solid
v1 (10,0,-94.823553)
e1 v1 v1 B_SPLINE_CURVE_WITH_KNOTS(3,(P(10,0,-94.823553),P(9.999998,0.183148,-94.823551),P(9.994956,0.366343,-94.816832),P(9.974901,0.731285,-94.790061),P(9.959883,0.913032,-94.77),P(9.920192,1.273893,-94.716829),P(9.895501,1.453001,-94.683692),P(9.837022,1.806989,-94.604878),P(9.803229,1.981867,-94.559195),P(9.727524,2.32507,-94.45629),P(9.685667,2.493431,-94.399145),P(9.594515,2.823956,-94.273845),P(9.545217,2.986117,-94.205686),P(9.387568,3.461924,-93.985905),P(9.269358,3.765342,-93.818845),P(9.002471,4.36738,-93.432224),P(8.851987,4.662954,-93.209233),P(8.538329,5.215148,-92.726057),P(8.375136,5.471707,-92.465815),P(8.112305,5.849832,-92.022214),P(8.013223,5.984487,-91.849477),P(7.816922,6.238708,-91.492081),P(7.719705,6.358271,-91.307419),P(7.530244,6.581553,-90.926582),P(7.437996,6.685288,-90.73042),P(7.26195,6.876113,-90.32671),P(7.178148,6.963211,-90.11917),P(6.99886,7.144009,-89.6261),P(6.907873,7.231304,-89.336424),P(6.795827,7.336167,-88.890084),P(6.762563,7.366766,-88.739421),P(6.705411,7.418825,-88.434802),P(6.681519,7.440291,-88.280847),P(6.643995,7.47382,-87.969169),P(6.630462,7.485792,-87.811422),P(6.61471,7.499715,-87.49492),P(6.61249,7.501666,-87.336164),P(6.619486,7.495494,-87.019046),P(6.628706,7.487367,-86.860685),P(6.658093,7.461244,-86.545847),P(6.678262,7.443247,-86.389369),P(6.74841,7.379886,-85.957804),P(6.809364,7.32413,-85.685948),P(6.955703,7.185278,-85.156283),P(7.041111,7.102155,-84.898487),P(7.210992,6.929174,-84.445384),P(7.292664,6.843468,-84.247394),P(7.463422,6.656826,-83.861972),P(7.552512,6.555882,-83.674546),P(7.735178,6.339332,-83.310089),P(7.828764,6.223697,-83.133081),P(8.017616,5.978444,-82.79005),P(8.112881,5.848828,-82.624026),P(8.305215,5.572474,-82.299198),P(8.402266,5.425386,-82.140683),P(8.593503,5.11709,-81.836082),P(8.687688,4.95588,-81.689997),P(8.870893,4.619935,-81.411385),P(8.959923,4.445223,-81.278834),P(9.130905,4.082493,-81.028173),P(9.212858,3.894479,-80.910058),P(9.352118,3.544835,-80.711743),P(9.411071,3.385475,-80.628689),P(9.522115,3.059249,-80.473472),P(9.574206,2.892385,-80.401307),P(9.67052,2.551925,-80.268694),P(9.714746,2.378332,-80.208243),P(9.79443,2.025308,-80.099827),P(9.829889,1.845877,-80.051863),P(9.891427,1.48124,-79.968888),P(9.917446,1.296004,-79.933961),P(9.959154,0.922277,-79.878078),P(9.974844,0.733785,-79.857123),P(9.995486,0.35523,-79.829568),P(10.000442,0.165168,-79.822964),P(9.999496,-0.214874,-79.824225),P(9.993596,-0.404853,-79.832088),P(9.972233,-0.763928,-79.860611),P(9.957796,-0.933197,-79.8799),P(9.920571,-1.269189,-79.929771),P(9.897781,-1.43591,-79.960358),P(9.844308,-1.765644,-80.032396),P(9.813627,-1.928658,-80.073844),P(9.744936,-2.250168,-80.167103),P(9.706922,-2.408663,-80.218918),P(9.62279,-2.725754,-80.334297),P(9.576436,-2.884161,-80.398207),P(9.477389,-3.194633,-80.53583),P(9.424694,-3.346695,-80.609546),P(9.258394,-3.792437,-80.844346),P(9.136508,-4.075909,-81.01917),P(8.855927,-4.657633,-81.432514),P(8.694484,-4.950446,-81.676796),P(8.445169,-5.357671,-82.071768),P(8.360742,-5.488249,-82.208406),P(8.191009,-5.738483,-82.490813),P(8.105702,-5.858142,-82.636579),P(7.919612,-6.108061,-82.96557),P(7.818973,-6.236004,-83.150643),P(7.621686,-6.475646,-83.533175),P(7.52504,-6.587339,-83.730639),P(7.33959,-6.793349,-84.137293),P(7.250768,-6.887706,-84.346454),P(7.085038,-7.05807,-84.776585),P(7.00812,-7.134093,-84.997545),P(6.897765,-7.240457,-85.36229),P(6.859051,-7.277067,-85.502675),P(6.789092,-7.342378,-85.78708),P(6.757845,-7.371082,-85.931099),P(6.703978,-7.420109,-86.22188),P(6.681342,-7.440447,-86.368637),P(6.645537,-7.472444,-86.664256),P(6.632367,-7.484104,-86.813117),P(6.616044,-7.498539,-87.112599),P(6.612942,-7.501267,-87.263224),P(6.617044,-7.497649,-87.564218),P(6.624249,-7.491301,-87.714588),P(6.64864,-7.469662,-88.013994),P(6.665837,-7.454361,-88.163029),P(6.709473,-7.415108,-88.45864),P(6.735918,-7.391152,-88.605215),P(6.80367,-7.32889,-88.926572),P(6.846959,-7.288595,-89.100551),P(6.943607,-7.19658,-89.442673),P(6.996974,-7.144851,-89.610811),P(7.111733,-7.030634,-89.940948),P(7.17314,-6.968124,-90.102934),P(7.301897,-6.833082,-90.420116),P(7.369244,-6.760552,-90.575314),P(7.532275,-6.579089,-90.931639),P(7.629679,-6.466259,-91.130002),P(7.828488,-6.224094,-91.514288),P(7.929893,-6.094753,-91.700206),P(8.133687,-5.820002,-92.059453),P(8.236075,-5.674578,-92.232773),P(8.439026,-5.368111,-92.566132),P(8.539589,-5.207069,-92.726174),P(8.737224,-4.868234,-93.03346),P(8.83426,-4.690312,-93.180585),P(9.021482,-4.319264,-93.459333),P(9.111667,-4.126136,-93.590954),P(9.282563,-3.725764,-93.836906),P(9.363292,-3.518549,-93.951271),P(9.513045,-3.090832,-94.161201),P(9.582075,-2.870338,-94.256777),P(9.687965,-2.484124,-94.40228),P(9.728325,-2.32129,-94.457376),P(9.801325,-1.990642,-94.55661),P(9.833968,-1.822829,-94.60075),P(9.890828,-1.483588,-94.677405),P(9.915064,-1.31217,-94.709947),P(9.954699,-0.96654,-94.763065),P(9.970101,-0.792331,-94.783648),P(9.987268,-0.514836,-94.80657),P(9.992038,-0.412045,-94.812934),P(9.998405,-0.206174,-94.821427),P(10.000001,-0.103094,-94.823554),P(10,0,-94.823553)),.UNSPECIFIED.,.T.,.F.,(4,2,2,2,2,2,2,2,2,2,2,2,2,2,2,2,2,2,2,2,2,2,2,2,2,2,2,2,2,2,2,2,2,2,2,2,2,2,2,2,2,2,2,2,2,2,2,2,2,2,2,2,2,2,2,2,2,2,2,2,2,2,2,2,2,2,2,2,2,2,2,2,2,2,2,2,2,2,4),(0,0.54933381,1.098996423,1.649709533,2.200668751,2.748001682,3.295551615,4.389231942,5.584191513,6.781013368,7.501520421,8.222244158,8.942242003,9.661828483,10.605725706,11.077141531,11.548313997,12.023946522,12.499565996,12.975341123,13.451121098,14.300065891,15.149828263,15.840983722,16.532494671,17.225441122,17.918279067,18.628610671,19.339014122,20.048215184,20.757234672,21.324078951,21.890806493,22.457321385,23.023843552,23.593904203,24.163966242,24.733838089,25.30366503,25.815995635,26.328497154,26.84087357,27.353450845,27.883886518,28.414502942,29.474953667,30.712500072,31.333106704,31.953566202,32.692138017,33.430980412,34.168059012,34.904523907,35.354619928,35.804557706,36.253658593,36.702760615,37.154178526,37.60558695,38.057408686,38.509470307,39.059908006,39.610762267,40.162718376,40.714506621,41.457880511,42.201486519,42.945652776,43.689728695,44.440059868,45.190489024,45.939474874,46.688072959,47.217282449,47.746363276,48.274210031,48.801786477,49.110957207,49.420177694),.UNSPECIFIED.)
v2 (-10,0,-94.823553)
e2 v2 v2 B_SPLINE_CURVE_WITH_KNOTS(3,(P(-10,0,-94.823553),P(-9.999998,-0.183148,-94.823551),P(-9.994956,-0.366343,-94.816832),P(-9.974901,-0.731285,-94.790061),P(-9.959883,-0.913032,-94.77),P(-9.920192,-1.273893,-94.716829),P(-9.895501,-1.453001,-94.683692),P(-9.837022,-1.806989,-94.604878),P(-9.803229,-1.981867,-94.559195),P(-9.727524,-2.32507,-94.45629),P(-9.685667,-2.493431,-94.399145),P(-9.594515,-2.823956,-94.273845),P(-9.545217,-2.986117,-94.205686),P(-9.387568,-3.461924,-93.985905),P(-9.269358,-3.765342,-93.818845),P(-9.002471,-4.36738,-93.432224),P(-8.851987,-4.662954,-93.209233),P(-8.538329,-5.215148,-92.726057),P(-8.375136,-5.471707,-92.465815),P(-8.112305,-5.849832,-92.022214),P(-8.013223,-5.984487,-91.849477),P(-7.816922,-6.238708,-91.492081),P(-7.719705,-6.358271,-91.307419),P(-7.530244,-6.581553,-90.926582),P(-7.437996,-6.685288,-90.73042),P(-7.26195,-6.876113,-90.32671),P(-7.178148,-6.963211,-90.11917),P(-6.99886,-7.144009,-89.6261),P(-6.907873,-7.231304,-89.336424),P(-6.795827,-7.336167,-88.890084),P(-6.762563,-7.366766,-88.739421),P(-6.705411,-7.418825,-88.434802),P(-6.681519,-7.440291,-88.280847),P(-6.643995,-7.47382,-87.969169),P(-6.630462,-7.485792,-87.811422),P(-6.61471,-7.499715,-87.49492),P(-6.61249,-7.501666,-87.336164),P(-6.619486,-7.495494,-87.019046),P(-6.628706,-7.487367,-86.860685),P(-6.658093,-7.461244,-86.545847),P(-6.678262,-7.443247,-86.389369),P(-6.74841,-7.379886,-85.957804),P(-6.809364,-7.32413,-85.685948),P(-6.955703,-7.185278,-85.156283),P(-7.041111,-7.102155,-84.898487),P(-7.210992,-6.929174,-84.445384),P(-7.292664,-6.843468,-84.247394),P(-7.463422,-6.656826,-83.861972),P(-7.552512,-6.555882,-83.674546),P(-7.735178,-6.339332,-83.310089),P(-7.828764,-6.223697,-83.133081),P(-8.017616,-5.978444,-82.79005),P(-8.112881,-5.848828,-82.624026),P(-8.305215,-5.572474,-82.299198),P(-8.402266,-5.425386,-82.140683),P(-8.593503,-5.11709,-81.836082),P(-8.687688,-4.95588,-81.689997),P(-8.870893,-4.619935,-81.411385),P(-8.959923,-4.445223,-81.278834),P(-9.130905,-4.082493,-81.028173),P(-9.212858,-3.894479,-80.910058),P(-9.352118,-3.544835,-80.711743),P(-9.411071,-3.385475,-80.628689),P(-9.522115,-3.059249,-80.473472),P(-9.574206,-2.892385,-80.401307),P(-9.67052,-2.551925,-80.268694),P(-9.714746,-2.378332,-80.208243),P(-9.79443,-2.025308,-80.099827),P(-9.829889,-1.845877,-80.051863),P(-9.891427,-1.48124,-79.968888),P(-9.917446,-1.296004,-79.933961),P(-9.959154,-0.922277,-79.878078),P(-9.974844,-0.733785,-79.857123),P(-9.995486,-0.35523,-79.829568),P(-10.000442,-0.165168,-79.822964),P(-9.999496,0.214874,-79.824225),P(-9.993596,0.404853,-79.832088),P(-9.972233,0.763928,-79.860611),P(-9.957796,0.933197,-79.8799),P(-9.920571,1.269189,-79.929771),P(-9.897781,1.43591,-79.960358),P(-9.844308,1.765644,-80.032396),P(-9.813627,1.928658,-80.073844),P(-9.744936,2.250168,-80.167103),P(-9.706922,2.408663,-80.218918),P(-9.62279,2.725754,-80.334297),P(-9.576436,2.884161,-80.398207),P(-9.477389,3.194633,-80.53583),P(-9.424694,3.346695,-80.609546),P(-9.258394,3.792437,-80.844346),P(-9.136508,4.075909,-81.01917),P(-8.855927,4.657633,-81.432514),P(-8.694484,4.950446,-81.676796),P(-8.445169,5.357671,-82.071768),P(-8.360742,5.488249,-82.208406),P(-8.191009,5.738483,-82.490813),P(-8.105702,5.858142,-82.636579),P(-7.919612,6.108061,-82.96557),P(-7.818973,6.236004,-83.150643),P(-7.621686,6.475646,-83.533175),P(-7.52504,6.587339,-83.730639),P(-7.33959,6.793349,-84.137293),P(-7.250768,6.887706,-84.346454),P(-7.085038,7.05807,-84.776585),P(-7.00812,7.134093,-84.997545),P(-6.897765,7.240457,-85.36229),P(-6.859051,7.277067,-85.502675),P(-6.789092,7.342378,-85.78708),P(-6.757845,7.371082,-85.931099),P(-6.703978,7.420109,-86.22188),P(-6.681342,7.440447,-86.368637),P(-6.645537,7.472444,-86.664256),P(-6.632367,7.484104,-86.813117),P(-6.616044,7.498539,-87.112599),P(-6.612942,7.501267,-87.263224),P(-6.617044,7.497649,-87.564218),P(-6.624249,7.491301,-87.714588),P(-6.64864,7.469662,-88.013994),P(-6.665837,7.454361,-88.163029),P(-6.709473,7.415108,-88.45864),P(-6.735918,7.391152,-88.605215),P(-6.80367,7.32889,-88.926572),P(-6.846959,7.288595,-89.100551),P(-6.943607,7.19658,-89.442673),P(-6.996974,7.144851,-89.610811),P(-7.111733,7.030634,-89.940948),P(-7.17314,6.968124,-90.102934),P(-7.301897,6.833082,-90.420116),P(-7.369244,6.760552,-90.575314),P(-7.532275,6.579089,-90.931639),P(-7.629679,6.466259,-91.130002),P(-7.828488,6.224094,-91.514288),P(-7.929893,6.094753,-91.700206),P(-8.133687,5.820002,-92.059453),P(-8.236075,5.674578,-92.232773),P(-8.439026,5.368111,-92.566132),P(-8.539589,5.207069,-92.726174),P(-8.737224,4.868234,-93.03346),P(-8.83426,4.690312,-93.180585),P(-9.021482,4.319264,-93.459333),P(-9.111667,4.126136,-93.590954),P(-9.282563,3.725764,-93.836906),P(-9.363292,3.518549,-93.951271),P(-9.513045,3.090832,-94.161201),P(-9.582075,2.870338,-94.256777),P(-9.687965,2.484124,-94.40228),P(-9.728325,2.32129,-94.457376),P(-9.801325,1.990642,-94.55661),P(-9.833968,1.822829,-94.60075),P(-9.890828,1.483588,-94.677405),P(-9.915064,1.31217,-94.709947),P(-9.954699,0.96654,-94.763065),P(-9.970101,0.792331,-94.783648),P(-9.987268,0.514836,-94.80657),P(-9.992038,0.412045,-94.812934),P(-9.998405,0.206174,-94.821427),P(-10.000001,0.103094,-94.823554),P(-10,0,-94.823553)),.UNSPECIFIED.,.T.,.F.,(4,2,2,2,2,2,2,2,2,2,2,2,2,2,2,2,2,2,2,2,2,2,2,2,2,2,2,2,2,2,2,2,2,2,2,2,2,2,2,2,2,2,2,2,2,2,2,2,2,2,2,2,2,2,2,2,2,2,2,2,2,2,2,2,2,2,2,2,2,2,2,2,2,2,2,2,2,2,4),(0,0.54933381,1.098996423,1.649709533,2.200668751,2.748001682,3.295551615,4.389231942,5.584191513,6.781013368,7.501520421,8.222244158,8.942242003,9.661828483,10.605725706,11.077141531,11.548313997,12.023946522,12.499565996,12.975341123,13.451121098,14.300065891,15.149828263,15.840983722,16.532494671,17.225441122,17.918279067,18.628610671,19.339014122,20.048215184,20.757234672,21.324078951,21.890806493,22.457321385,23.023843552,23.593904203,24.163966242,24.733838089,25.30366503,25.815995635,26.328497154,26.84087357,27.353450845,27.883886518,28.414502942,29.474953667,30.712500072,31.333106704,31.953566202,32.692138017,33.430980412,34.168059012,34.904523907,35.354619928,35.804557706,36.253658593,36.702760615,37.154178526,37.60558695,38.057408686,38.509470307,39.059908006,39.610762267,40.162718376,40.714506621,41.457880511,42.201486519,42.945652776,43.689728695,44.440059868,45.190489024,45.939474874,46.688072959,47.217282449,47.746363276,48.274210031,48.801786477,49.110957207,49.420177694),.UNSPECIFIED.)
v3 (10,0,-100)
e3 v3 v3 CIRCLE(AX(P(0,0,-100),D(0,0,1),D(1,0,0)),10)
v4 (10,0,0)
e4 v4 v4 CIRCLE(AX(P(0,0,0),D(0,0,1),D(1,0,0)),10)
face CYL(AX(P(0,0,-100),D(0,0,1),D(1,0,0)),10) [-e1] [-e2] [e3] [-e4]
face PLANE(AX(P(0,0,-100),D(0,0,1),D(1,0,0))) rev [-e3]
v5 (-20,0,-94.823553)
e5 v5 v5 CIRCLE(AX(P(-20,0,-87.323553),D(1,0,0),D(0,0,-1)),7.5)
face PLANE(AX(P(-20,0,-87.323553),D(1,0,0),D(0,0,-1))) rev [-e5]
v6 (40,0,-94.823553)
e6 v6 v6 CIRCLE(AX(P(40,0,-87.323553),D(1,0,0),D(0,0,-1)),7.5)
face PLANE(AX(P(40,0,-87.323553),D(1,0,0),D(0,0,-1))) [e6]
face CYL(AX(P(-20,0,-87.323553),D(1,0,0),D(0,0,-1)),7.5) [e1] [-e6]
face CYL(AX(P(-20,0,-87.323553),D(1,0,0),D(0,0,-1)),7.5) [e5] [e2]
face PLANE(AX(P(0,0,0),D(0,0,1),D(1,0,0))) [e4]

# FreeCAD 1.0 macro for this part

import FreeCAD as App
import Part
import Sketcher

V = App.Vector

doc = App.newDocument("Part")
body = doc.addObject("PartDesign::Body", "Body")

# Sketch on XY plane
sketch1 = doc.addObject("Sketcher::SketchObject", "Sketch")
body.addObject(sketch1)
sketch1.AttachmentSupport = (doc.XY_Plane, [""])
sketch1.MapMode = "FlatFace"
sketch1.addGeometry(Part.Circle(V(0, 0, 0), V(0, 0, 1), 10), False)
sketch1.addConstraint(Sketcher.Constraint("Coincident", 0, 3, -1, 1))
sketch1.addConstraint(Sketcher.Constraint("Diameter", 0, 20.0))
pad1 = doc.addObject("PartDesign::Pad", "Pad")
body.addObject(pad1)
pad1.Profile = sketch1
pad1.Length = 100
pad1.Reversed = True

# Sketch on YZ plane
sketch2 = doc.addObject("Sketcher::SketchObject", "Sketch001")
body.addObject(sketch2)
sketch2.AttachmentSupport = (doc.YZ_Plane, [""])
sketch2.MapMode = "FlatFace"
sketch2.AttachmentOffset = App.Placement(V(0, 0, 10), App.Rotation())
sketch2.addGeometry(Part.Circle(V(0, -87.323553, 0), V(0, 0, 1), 7.5), False)
sketch2.addConstraint(Sketcher.Constraint("PointOnObject", 0, 3, -2))
sketch2.addConstraint(Sketcher.Constraint("Diameter", 0, 15.0))
sketch2.addConstraint(Sketcher.Constraint("DistanceY", 0, 3, -1, 1, 87.323553))
pad2 = doc.addObject("PartDesign::Pad", "Pad001")
body.addObject(pad2)
pad2.Profile = sketch2
pad2.Length = 60
pad2.Midplane = True

doc.recompute()
